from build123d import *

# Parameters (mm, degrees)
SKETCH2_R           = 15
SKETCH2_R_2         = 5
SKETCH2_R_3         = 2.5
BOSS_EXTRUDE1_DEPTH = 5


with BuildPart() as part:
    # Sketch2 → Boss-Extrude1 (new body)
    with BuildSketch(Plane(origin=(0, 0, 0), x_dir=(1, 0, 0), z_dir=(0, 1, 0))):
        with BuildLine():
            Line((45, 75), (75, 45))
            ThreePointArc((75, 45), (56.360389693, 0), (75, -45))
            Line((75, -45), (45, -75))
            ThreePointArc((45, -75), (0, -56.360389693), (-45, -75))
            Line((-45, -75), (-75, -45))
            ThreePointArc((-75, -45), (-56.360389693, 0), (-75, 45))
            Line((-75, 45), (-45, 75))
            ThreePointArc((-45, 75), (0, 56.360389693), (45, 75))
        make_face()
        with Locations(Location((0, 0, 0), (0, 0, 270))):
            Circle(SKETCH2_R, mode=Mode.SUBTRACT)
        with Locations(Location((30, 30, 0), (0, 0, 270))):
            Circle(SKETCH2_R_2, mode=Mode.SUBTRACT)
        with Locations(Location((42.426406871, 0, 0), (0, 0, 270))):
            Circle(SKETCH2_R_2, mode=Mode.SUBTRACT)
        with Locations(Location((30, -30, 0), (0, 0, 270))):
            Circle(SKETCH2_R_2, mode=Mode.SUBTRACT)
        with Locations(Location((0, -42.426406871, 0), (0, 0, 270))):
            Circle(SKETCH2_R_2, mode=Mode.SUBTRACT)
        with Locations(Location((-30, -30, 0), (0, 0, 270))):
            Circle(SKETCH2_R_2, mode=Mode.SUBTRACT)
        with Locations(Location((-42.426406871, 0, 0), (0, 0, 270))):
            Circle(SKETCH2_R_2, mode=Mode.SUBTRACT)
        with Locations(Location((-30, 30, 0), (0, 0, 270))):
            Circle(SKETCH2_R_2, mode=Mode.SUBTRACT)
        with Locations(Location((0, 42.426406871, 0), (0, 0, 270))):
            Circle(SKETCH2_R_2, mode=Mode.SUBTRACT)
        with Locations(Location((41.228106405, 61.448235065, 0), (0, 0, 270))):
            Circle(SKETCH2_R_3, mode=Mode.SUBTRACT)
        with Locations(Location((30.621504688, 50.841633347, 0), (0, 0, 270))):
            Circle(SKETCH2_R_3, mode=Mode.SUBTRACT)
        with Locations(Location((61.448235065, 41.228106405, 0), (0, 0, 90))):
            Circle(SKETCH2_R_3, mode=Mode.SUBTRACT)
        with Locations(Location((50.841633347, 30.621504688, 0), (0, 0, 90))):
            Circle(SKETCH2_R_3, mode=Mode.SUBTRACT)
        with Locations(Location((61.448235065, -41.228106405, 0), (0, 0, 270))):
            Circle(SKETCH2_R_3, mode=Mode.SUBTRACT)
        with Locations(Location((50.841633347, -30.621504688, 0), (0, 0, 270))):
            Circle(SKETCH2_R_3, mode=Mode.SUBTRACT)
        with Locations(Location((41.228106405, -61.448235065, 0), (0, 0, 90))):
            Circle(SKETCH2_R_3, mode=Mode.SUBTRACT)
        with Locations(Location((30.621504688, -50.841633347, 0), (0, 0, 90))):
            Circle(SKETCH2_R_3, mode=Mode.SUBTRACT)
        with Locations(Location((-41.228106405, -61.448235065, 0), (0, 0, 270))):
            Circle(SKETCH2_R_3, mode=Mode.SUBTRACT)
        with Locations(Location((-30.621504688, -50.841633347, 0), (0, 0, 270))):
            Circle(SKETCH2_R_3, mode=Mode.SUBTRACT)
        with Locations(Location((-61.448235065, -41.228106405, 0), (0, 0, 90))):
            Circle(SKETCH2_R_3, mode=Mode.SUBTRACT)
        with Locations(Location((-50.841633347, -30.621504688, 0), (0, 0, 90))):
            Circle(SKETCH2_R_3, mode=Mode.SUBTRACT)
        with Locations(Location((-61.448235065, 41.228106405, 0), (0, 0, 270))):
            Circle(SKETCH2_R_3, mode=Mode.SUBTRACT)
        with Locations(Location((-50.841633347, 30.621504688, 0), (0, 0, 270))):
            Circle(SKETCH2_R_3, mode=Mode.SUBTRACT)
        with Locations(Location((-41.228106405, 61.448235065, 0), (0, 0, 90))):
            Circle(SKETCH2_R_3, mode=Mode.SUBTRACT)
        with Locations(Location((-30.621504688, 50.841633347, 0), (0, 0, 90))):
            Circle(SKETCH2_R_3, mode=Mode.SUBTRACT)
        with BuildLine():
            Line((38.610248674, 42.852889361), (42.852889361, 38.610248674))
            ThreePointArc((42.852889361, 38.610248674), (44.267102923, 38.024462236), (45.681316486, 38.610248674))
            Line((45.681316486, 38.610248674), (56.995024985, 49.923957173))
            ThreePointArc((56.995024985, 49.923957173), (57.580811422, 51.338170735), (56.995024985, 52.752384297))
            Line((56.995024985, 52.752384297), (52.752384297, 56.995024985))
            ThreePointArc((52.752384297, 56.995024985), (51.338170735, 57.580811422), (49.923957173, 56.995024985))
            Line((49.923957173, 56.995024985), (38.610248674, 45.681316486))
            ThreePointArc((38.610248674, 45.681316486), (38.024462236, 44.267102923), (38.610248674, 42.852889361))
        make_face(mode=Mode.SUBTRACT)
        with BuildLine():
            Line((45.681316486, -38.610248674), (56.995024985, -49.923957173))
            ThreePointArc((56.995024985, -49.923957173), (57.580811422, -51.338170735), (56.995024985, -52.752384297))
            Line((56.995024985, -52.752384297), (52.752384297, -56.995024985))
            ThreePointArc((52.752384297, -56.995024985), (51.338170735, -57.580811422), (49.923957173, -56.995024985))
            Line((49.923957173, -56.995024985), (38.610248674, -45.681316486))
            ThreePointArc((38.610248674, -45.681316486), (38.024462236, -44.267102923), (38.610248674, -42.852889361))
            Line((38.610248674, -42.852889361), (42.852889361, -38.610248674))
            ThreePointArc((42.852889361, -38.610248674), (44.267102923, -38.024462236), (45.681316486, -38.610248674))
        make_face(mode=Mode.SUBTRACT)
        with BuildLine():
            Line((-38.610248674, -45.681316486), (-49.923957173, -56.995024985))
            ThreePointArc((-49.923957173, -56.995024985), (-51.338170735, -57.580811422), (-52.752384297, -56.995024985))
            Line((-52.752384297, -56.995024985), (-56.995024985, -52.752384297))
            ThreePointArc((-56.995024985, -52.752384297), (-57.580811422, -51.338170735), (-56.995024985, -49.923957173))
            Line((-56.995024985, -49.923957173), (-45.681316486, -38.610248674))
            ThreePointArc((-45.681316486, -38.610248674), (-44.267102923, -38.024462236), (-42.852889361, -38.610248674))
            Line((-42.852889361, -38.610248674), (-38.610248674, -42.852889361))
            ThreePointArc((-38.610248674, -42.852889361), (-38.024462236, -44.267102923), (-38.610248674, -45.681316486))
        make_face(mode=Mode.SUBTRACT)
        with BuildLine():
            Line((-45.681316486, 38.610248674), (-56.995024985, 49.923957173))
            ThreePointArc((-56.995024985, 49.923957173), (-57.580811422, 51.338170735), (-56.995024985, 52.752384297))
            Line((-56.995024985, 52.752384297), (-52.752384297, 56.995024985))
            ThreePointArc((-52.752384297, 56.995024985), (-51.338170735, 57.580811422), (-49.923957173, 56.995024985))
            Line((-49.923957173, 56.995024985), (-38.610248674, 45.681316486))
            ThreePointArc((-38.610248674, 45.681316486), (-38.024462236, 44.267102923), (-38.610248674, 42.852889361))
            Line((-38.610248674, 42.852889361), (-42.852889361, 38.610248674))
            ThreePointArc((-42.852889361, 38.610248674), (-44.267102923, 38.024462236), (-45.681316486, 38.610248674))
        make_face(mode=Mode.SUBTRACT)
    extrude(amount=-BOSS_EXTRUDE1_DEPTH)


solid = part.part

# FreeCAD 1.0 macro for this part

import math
import FreeCAD as App
import Part
import Sketcher

V = App.Vector
Q = App.Units.Quantity

doc = App.newDocument("Part")
params = doc.addObject("Spreadsheet::Sheet", "Params")
for row, (alias, value) in enumerate([
    ("sketch1_diameter", "5 mm"),
    ("sketch1_diameter2", "10 mm"),
    ("sketch1_diameter3", "30 mm"),
    ("sketch1_radius", "2 mm"),
    ("sketch1_length", "16 mm"),
    ("pad1_length", "5 mm"),
], start=1):
    params.set(f"A{row}", alias)
    params.set(f"B{row}", "=" + value)
    params.setAlias(f"B{row}", alias)

body = doc.addObject("PartDesign::Body", "Body")

sketch1 = doc.addObject("Sketcher::SketchObject", "Sketch")
body.addObject(sketch1)
sketch1.AttachmentSupport = (doc.XZ_Plane, [""])
sketch1.MapMode = "FlatFace"
sketch1.addGeometry([
    Part.LineSegment(V(75, -45, 0), V(45, -75, 0)),
    Part.ArcOfCircle(Part.Circle(V(0, -120, 0), V(0, 0, 1), 63.6), math.radians(45), math.radians(135)),
    Part.LineSegment(V(-45, -75, 0), V(-75, -45, 0)),
    Part.ArcOfCircle(Part.Circle(V(-120, 0, 0), V(0, 0, 1), 63.6), math.radians(-45), math.radians(45)),
    Part.LineSegment(V(-75, 45, 0), V(-45, 75, 0)),
    Part.ArcOfCircle(Part.Circle(V(0, 120, 0), V(0, 0, 1), 63.6), math.radians(-135), math.radians(-45)),
    Part.LineSegment(V(45, 75, 0), V(75, 45, 0)),
    Part.ArcOfCircle(Part.Circle(V(120, 0, 0), V(0, 0, 1), 63.6), math.radians(135), math.radians(225)),
    Part.Circle(V(41.2, 61.4, 0), V(0, 0, 1), 2.5),
    Part.Circle(V(61.4, 41.2, 0), V(0, 0, 1), 2.5),
    Part.LineSegment(V(45.7, 38.6, 0), V(57, 49.9, 0)),
    Part.ArcOfCircle(Part.Circle(V(55.6, 51.3, 0), V(0, 0, 1), 2), math.radians(-45), math.radians(45)),
    Part.LineSegment(V(57, 52.8, 0), V(52.8, 57, 0)),
    Part.ArcOfCircle(Part.Circle(V(51.3, 55.6, 0), V(0, 0, 1), 2), math.radians(45), math.radians(135)),
    Part.LineSegment(V(49.9, 57, 0), V(38.6, 45.7, 0)),
    Part.ArcOfCircle(Part.Circle(V(40, 44.3, 0), V(0, 0, 1), 2), math.radians(135), math.radians(225)),
    Part.LineSegment(V(38.6, 42.9, 0), V(42.9, 38.6, 0)),
    Part.ArcOfCircle(Part.Circle(V(44.3, 40, 0), V(0, 0, 1), 2), math.radians(-135), math.radians(-45)),
    Part.Circle(V(30.6, 50.8, 0), V(0, 0, 1), 2.5),
    Part.Circle(V(0, 42.4, 0), V(0, 0, 1), 5),
    Part.Circle(V(50.8, 30.6, 0), V(0, 0, 1), 2.5),
    Part.Circle(V(42.4, 0, 0), V(0, 0, 1), 5),
    Part.Circle(V(30, 30, 0), V(0, 0, 1), 5),
    Part.Circle(V(0, 0, 0), V(0, 0, 1), 15),
    Part.Circle(V(-30.6, 50.8, 0), V(0, 0, 1), 2.5),
    Part.Circle(V(-41.2, 61.4, 0), V(0, 0, 1), 2.5),
    Part.LineSegment(V(-38.6, 45.7, 0), V(-49.9, 57, 0)),
    Part.ArcOfCircle(Part.Circle(V(-51.3, 55.6, 0), V(0, 0, 1), 2), math.radians(45), math.radians(135)),
    Part.LineSegment(V(-52.8, 57, 0), V(-57, 52.8, 0)),
    Part.ArcOfCircle(Part.Circle(V(-55.6, 51.3, 0), V(0, 0, 1), 2), math.radians(135), math.radians(225)),
    Part.LineSegment(V(-57, 49.9, 0), V(-45.7, 38.6, 0)),
    Part.ArcOfCircle(Part.Circle(V(-44.3, 40, 0), V(0, 0, 1), 2), math.radians(-135), math.radians(-45)),
    Part.LineSegment(V(-42.9, 38.6, 0), V(-38.6, 42.9, 0)),
    Part.ArcOfCircle(Part.Circle(V(-40, 44.3, 0), V(0, 0, 1), 2), math.radians(-45), math.radians(45)),
    Part.Circle(V(-61.4, 41.2, 0), V(0, 0, 1), 2.5),
    Part.Circle(V(-30, 30, 0), V(0, 0, 1), 5),
    Part.Circle(V(-50.8, 30.6, 0), V(0, 0, 1), 2.5),
    Part.Circle(V(-42.4, 0, 0), V(0, 0, 1), 5),
    Part.Circle(V(50.8, -30.6, 0), V(0, 0, 1), 2.5),
    Part.Circle(V(30, -30, 0), V(0, 0, 1), 5),
    Part.Circle(V(61.4, -41.2, 0), V(0, 0, 1), 2.5),
    Part.ArcOfCircle(Part.Circle(V(40, -44.3, 0), V(0, 0, 1), 2), math.radians(135), math.radians(225)),
    Part.LineSegment(V(38.6, -45.7, 0), V(49.9, -57, 0)),
    Part.ArcOfCircle(Part.Circle(V(51.3, -55.6, 0), V(0, 0, 1), 2), math.radians(-135), math.radians(-45)),
    Part.LineSegment(V(52.8, -57, 0), V(57, -52.8, 0)),
    Part.ArcOfCircle(Part.Circle(V(55.6, -51.3, 0), V(0, 0, 1), 2), math.radians(-45), math.radians(45)),
    Part.LineSegment(V(57, -49.9, 0), V(45.7, -38.6, 0)),
    Part.ArcOfCircle(Part.Circle(V(44.3, -40, 0), V(0, 0, 1), 2), math.radians(45), math.radians(135)),
    Part.LineSegment(V(42.9, -38.6, 0), V(38.6, -42.9, 0)),
    Part.Circle(V(41.2, -61.4, 0), V(0, 0, 1), 2.5),
    Part.Circle(V(0, -42.4, 0), V(0, 0, 1), 5),
    Part.Circle(V(30.6, -50.8, 0), V(0, 0, 1), 2.5),
    Part.Circle(V(-30, -30, 0), V(0, 0, 1), 5),
    Part.Circle(V(-50.8, -30.6, 0), V(0, 0, 1), 2.5),
    Part.Circle(V(-30.6, -50.8, 0), V(0, 0, 1), 2.5),
    Part.LineSegment(V(-45.7, -38.6, 0), V(-57, -49.9, 0)),
    Part.ArcOfCircle(Part.Circle(V(-55.6, -51.3, 0), V(0, 0, 1), 2), math.radians(135), math.radians(225)),
    Part.LineSegment(V(-57, -52.8, 0), V(-52.8, -57, 0)),
    Part.ArcOfCircle(Part.Circle(V(-51.3, -55.6, 0), V(0, 0, 1), 2), math.radians(-135), math.radians(-45)),
    Part.LineSegment(V(-49.9, -57, 0), V(-38.6, -45.7, 0)),
    Part.ArcOfCircle(Part.Circle(V(-40, -44.3, 0), V(0, 0, 1), 2), math.radians(-45), math.radians(45)),
    Part.LineSegment(V(-38.6, -42.9, 0), V(-42.9, -38.6, 0)),
    Part.ArcOfCircle(Part.Circle(V(-44.3, -40, 0), V(0, 0, 1), 2), math.radians(45), math.radians(135)),
    Part.Circle(V(-61.4, -41.2, 0), V(0, 0, 1), 2.5),
    Part.Circle(V(-41.2, -61.4, 0), V(0, 0, 1), 2.5),
], False)
sketch1.addConstraint([
    Sketcher.Constraint("Coincident", 0, 2, 1, 1),
    Sketcher.Constraint("Coincident", 1, 2, 2, 1),
    Sketcher.Constraint("Coincident", 2, 2, 3, 1),
    Sketcher.Constraint("Coincident", 3, 2, 4, 1),
    Sketcher.Constraint("Coincident", 4, 2, 5, 1),
    Sketcher.Constraint("Coincident", 5, 2, 6, 1),
    Sketcher.Constraint("Coincident", 6, 2, 7, 1),
    Sketcher.Constraint("Coincident", 7, 2, 0, 1),
    Sketcher.Constraint("Tangent", 10, 2, 11, 1),
    Sketcher.Constraint("Tangent", 11, 2, 12, 1),
    Sketcher.Constraint("Tangent", 12, 2, 13, 1),
    Sketcher.Constraint("Tangent", 13, 2, 14, 1),
    Sketcher.Constraint("Tangent", 14, 2, 15, 1),
    Sketcher.Constraint("Tangent", 15, 2, 16, 1),
    Sketcher.Constraint("Tangent", 16, 2, 17, 1),
    Sketcher.Constraint("Tangent", 17, 2, 10, 1),
    Sketcher.Constraint("Tangent", 26, 2, 27, 1),
    Sketcher.Constraint("Tangent", 27, 2, 28, 1),
    Sketcher.Constraint("Tangent", 28, 2, 29, 1),
    Sketcher.Constraint("Tangent", 29, 2, 30, 1),
    Sketcher.Constraint("Tangent", 30, 2, 31, 1),
    Sketcher.Constraint("Tangent", 31, 2, 32, 1),
    Sketcher.Constraint("Tangent", 32, 2, 33, 1),
    Sketcher.Constraint("Tangent", 33, 2, 26, 1),
    Sketcher.Constraint("Tangent", 41, 2, 42, 1),
    Sketcher.Constraint("Tangent", 42, 2, 43, 1),
    Sketcher.Constraint("Tangent", 43, 2, 44, 1),
    Sketcher.Constraint("Tangent", 44, 2, 45, 1),
    Sketcher.Constraint("Tangent", 45, 2, 46, 1),
    Sketcher.Constraint("Tangent", 46, 2, 47, 1),
    Sketcher.Constraint("Tangent", 47, 2, 48, 1),
    Sketcher.Constraint("Tangent", 48, 2, 41, 1),
    Sketcher.Constraint("Tangent", 55, 2, 56, 1),
    Sketcher.Constraint("Tangent", 56, 2, 57, 1),
    Sketcher.Constraint("Tangent", 57, 2, 58, 1),
    Sketcher.Constraint("Tangent", 58, 2, 59, 1),
    Sketcher.Constraint("Tangent", 59, 2, 60, 1),
    Sketcher.Constraint("Tangent", 60, 2, 61, 1),
    Sketcher.Constraint("Tangent", 61, 2, 62, 1),
    Sketcher.Constraint("Tangent", 62, 2, 55, 1),
    Sketcher.Constraint("Coincident", 23, 3, -1, 1),
    Sketcher.Constraint("Equal", 1, 3),
    Sketcher.Constraint("Equal", 3, 5),
    Sketcher.Constraint("Equal", 5, 7),
    Sketcher.Constraint("Equal", 8, 9),
    Sketcher.Constraint("Equal", 11, 13),
    Sketcher.Constraint("Equal", 13, 15),
    Sketcher.Constraint("Equal", 15, 17),
    Sketcher.Constraint("Equal", 9, 18),
    Sketcher.Constraint("Equal", 18, 20),
    Sketcher.Constraint("Equal", 19, 21),
    Sketcher.Constraint("Equal", 21, 22),
    Sketcher.Constraint("Equal", 20, 24),
    Sketcher.Constraint("Equal", 24, 25),
    Sketcher.Constraint("Equal", 17, 27),
    Sketcher.Constraint("Equal", 27, 29),
    Sketcher.Constraint("Equal", 29, 31),
    Sketcher.Constraint("Equal", 31, 33),
    Sketcher.Constraint("Equal", 25, 34),
    Sketcher.Constraint("Equal", 22, 35),
    Sketcher.Constraint("Equal", 34, 36),
    Sketcher.Constraint("Equal", 35, 37),
    Sketcher.Constraint("Equal", 36, 38),
    Sketcher.Constraint("Equal", 37, 39),
    Sketcher.Constraint("Equal", 38, 40),
    Sketcher.Constraint("Equal", 33, 41),
    Sketcher.Constraint("Equal", 41, 43),
    Sketcher.Constraint("Equal", 43, 45),
    Sketcher.Constraint("Equal", 45, 47),
    Sketcher.Constraint("Equal", 40, 49),
    Sketcher.Constraint("Equal", 39, 50),
    Sketcher.Constraint("Equal", 49, 51),
    Sketcher.Constraint("Equal", 50, 52),
    Sketcher.Constraint("Equal", 51, 53),
    Sketcher.Constraint("Equal", 53, 54),
    Sketcher.Constraint("Equal", 47, 56),
    Sketcher.Constraint("Equal", 56, 58),
    Sketcher.Constraint("Equal", 58, 60),
    Sketcher.Constraint("Equal", 60, 62),
    Sketcher.Constraint("Equal", 54, 63),
    Sketcher.Constraint("Equal", 63, 64),
    Sketcher.Constraint("Symmetric", 1, 3, 5, 3, -1, 1),
    Sketcher.Constraint("Symmetric", 3, 3, 7, 3, -1, 1),
    Sketcher.Constraint("Symmetric", 21, 3, 37, 3, -1, 1),
    Sketcher.Constraint("Symmetric", 36, 3, 38, 3, -1, 1),
    Sketcher.Constraint("Symmetric", 35, 3, 39, 3, -1, 1),
    Sketcher.Constraint("Symmetric", 34, 3, 40, 3, -1, 1),
    Sketcher.Constraint("Symmetric", 33, 3, 41, 3, -1, 1),
    Sketcher.Constraint("Symmetric", 27, 3, 43, 3, -1, 1),
    Sketcher.Constraint("Symmetric", 29, 3, 45, 3, -1, 1),
    Sketcher.Constraint("Symmetric", 31, 3, 47, 3, -1, 1),
    Sketcher.Constraint("Symmetric", 25, 3, 49, 3, -1, 1),
    Sketcher.Constraint("Symmetric", 19, 3, 50, 3, -1, 1),
    Sketcher.Constraint("Symmetric", 24, 3, 51, 3, -1, 1),
    Sketcher.Constraint("Symmetric", 22, 3, 52, 3, -1, 1),
    Sketcher.Constraint("Symmetric", 20, 3, 53, 3, -1, 1),
    Sketcher.Constraint("Symmetric", 18, 3, 54, 3, -1, 1),
    Sketcher.Constraint("Symmetric", 11, 3, 56, 3, -1, 1),
    Sketcher.Constraint("Symmetric", 13, 3, 58, 3, -1, 1),
    Sketcher.Constraint("Symmetric", 15, 3, 60, 3, -1, 1),
    Sketcher.Constraint("Symmetric", 17, 3, 62, 3, -1, 1),
    Sketcher.Constraint("Symmetric", 9, 3, 63, 3, -1, 1),
    Sketcher.Constraint("Symmetric", 8, 3, 64, 3, -1, 1),
    Sketcher.Constraint("Symmetric", 18, 3, 24, 3, -2),
    Sketcher.Constraint("Symmetric", 8, 3, 25, 3, -2),
    Sketcher.Constraint("Symmetric", 13, 3, 27, 3, -2),
    Sketcher.Constraint("Symmetric", 11, 3, 29, 3, -2),
    Sketcher.Constraint("Symmetric", 17, 3, 31, 3, -2),
    Sketcher.Constraint("Symmetric", 15, 3, 33, 3, -2),
    Sketcher.Constraint("Symmetric", 9, 3, 34, 3, -2),
    Sketcher.Constraint("Symmetric", 22, 3, 35, 3, -2),
    Sketcher.Constraint("Symmetric", 20, 3, 36, 3, -2),
    Sketcher.Constraint("Symmetric", 0, 2, 1, 2, -2),
    Sketcher.Constraint("Symmetric", 3, 2, 6, 2, -2),
    Sketcher.Constraint("PointOnObject", 19, 3, -2),
    Sketcher.Constraint("PointOnObject", 21, 3, -1),
    Sketcher.Constraint("Perpendicular", 0, 2),
    Sketcher.Constraint("Perpendicular", 2, 4),
    Sketcher.Constraint("Perpendicular", 4, 6),
    Sketcher.Constraint("Perpendicular", 6, 10),
    Sketcher.Constraint("Perpendicular", 10, 12),
    Sketcher.Constraint("Perpendicular", 12, 14),
    Sketcher.Constraint("Perpendicular", 14, 16),
    Sketcher.Constraint("Parallel", 16, 26),
    Sketcher.Constraint("Vertical", 2, 2, 3, 2),
    Sketcher.Constraint("Diameter", 8, Q("5 mm")),
    Sketcher.Constraint("Diameter", 19, Q("10 mm")),
    Sketcher.Constraint("Diameter", 23, Q("30 mm")),
    Sketcher.Constraint("Radius", 11, Q("2 mm")),
    Sketcher.Constraint("Distance", 10, Q("16 mm")),
    Sketcher.Constraint("Distance", 12, Q("6 mm")),
    Sketcher.Constraint("DistanceY", 1, 3, -1, 1, Q("120 mm")),
    Sketcher.Constraint("DistanceX", 3, 3, -1, 1, Q("120 mm")),
    Sketcher.Constraint("DistanceX", -1, 1, 22, 3, Q("30 mm")),
    Sketcher.Constraint("DistanceY", -1, 1, 22, 3, Q("30 mm")),
    Sketcher.Constraint("DistanceX", -1, 1, 0, 2, Q("45 mm")),
    Sketcher.Constraint("DistanceY", 0, 2, -1, 1, Q("75 mm")),
    Sketcher.Constraint("DistanceX", -1, 1, 11, 3, Q("55.580811 mm")),
    Sketcher.Constraint("DistanceY", -1, 1, 11, 3, Q("51.338171 mm")),
    Sketcher.Constraint("DistanceX", -1, 1, 8, 3, Q("41.228106 mm")),
    Sketcher.Constraint("DistanceY", -1, 1, 8, 3, Q("61.448235 mm")),
    Sketcher.Constraint("DistanceX", -1, 1, 9, 3, Q("61.448235 mm")),
    Sketcher.Constraint("DistanceY", -1, 1, 9, 3, Q("41.228106 mm")),
    Sketcher.Constraint("DistanceX", -1, 1, 18, 3, Q("30.621505 mm")),
    Sketcher.Constraint("DistanceY", -1, 1, 18, 3, Q("50.841633 mm")),
    Sketcher.Constraint("DistanceY", -1, 1, 19, 3, Q("42.426407 mm")),
    Sketcher.Constraint("DistanceX", -1, 1, 20, 3, Q("50.841633 mm")),
    Sketcher.Constraint("DistanceY", -1, 1, 20, 3, Q("30.621505 mm")),
    Sketcher.Constraint("DistanceX", -1, 1, 21, 3, Q("42.426407 mm")),
])
sketch1.setExpression("Constraints[125]", "Params.sketch1_diameter")
sketch1.setExpression("Constraints[126]", "Params.sketch1_diameter2")
sketch1.setExpression("Constraints[127]", "Params.sketch1_diameter3")
sketch1.setExpression("Constraints[128]", "Params.sketch1_radius")
sketch1.setExpression("Constraints[129]", "Params.sketch1_length")
pad1 = doc.addObject("PartDesign::Pad", "Pad")
body.addObject(pad1)
pad1.Profile = sketch1
pad1.setExpression("Length", "Params.pad1_length")

doc.recompute()
